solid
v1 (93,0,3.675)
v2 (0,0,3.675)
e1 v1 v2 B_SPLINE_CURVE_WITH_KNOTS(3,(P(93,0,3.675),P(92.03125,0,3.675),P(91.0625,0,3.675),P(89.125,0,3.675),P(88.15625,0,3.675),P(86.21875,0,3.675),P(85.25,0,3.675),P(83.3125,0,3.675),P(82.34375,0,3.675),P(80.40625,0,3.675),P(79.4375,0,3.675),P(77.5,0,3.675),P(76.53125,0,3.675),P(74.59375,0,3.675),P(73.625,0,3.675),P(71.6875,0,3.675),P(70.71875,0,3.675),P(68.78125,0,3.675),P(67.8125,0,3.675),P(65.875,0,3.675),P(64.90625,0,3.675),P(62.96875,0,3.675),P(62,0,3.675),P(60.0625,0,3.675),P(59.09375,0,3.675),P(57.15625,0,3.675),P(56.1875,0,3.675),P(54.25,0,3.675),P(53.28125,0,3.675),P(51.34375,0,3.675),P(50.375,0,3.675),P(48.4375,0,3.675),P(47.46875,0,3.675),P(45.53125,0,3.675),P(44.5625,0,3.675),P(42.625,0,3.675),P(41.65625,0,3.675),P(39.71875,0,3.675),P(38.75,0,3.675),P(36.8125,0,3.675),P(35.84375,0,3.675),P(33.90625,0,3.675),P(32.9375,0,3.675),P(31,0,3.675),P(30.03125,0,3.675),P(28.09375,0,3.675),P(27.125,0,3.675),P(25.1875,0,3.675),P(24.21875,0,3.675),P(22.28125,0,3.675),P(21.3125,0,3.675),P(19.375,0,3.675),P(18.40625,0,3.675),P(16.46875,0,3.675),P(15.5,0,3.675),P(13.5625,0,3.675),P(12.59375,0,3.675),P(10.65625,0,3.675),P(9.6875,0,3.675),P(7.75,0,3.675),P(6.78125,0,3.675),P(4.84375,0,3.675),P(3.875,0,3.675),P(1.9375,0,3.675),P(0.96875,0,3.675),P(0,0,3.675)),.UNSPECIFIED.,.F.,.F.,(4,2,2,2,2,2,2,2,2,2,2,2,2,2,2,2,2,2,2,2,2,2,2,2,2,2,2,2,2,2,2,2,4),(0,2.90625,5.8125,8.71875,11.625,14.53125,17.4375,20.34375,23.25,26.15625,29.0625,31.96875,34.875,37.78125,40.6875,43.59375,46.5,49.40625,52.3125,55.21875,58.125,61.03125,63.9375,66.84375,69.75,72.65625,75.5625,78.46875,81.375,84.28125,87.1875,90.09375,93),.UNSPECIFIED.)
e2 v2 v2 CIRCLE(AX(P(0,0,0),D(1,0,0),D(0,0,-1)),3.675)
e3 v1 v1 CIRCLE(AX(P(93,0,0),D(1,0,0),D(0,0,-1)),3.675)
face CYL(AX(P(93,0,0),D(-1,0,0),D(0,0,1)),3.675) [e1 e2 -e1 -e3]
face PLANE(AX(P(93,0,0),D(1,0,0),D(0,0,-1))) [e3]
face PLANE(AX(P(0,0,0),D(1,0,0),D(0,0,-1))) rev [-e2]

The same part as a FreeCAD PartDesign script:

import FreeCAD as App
import Part
import Sketcher
from FreeCAD import Vector
Q = App.Units.Quantity

doc = App.newDocument("Part")
params = doc.addObject("Spreadsheet::Sheet", "Params")
for row, (alias, value) in enumerate([
    ("sketch1_diameter", "7.35 mm"),
    ("pad1_length", "93 mm"),
], start=1):
    params.set(f"A{row}", alias)
    params.set(f"B{row}", "=" + value)
    params.setAlias(f"B{row}", alias)

body = doc.addObject("PartDesign::Body", "Body")

sketch1 = body.newObject("Sketcher::SketchObject", "Sketch")
sketch1.AttachmentSupport = (doc.getObject("YZ_Plane"), [""])
sketch1.MapMode = "FlatFace"
sketch1.addGeometry(Part.Circle(Vector(0, 0, 0), Vector(0, 0, 1), 3.7), False)
sketch1.addConstraint([
    Sketcher.Constraint("Coincident", 0, 3, -1, 1),
    Sketcher.Constraint("Diameter", 0, Q("7.35 mm")),
])
sketch1.setExpression("Constraints[1]", "Params.sketch1_diameter")
pad1 = body.newObject("PartDesign::Pad", "Pad")
pad1.Profile = sketch1
pad1.setExpression("Length", "Params.pad1_length")

doc.recompute()
